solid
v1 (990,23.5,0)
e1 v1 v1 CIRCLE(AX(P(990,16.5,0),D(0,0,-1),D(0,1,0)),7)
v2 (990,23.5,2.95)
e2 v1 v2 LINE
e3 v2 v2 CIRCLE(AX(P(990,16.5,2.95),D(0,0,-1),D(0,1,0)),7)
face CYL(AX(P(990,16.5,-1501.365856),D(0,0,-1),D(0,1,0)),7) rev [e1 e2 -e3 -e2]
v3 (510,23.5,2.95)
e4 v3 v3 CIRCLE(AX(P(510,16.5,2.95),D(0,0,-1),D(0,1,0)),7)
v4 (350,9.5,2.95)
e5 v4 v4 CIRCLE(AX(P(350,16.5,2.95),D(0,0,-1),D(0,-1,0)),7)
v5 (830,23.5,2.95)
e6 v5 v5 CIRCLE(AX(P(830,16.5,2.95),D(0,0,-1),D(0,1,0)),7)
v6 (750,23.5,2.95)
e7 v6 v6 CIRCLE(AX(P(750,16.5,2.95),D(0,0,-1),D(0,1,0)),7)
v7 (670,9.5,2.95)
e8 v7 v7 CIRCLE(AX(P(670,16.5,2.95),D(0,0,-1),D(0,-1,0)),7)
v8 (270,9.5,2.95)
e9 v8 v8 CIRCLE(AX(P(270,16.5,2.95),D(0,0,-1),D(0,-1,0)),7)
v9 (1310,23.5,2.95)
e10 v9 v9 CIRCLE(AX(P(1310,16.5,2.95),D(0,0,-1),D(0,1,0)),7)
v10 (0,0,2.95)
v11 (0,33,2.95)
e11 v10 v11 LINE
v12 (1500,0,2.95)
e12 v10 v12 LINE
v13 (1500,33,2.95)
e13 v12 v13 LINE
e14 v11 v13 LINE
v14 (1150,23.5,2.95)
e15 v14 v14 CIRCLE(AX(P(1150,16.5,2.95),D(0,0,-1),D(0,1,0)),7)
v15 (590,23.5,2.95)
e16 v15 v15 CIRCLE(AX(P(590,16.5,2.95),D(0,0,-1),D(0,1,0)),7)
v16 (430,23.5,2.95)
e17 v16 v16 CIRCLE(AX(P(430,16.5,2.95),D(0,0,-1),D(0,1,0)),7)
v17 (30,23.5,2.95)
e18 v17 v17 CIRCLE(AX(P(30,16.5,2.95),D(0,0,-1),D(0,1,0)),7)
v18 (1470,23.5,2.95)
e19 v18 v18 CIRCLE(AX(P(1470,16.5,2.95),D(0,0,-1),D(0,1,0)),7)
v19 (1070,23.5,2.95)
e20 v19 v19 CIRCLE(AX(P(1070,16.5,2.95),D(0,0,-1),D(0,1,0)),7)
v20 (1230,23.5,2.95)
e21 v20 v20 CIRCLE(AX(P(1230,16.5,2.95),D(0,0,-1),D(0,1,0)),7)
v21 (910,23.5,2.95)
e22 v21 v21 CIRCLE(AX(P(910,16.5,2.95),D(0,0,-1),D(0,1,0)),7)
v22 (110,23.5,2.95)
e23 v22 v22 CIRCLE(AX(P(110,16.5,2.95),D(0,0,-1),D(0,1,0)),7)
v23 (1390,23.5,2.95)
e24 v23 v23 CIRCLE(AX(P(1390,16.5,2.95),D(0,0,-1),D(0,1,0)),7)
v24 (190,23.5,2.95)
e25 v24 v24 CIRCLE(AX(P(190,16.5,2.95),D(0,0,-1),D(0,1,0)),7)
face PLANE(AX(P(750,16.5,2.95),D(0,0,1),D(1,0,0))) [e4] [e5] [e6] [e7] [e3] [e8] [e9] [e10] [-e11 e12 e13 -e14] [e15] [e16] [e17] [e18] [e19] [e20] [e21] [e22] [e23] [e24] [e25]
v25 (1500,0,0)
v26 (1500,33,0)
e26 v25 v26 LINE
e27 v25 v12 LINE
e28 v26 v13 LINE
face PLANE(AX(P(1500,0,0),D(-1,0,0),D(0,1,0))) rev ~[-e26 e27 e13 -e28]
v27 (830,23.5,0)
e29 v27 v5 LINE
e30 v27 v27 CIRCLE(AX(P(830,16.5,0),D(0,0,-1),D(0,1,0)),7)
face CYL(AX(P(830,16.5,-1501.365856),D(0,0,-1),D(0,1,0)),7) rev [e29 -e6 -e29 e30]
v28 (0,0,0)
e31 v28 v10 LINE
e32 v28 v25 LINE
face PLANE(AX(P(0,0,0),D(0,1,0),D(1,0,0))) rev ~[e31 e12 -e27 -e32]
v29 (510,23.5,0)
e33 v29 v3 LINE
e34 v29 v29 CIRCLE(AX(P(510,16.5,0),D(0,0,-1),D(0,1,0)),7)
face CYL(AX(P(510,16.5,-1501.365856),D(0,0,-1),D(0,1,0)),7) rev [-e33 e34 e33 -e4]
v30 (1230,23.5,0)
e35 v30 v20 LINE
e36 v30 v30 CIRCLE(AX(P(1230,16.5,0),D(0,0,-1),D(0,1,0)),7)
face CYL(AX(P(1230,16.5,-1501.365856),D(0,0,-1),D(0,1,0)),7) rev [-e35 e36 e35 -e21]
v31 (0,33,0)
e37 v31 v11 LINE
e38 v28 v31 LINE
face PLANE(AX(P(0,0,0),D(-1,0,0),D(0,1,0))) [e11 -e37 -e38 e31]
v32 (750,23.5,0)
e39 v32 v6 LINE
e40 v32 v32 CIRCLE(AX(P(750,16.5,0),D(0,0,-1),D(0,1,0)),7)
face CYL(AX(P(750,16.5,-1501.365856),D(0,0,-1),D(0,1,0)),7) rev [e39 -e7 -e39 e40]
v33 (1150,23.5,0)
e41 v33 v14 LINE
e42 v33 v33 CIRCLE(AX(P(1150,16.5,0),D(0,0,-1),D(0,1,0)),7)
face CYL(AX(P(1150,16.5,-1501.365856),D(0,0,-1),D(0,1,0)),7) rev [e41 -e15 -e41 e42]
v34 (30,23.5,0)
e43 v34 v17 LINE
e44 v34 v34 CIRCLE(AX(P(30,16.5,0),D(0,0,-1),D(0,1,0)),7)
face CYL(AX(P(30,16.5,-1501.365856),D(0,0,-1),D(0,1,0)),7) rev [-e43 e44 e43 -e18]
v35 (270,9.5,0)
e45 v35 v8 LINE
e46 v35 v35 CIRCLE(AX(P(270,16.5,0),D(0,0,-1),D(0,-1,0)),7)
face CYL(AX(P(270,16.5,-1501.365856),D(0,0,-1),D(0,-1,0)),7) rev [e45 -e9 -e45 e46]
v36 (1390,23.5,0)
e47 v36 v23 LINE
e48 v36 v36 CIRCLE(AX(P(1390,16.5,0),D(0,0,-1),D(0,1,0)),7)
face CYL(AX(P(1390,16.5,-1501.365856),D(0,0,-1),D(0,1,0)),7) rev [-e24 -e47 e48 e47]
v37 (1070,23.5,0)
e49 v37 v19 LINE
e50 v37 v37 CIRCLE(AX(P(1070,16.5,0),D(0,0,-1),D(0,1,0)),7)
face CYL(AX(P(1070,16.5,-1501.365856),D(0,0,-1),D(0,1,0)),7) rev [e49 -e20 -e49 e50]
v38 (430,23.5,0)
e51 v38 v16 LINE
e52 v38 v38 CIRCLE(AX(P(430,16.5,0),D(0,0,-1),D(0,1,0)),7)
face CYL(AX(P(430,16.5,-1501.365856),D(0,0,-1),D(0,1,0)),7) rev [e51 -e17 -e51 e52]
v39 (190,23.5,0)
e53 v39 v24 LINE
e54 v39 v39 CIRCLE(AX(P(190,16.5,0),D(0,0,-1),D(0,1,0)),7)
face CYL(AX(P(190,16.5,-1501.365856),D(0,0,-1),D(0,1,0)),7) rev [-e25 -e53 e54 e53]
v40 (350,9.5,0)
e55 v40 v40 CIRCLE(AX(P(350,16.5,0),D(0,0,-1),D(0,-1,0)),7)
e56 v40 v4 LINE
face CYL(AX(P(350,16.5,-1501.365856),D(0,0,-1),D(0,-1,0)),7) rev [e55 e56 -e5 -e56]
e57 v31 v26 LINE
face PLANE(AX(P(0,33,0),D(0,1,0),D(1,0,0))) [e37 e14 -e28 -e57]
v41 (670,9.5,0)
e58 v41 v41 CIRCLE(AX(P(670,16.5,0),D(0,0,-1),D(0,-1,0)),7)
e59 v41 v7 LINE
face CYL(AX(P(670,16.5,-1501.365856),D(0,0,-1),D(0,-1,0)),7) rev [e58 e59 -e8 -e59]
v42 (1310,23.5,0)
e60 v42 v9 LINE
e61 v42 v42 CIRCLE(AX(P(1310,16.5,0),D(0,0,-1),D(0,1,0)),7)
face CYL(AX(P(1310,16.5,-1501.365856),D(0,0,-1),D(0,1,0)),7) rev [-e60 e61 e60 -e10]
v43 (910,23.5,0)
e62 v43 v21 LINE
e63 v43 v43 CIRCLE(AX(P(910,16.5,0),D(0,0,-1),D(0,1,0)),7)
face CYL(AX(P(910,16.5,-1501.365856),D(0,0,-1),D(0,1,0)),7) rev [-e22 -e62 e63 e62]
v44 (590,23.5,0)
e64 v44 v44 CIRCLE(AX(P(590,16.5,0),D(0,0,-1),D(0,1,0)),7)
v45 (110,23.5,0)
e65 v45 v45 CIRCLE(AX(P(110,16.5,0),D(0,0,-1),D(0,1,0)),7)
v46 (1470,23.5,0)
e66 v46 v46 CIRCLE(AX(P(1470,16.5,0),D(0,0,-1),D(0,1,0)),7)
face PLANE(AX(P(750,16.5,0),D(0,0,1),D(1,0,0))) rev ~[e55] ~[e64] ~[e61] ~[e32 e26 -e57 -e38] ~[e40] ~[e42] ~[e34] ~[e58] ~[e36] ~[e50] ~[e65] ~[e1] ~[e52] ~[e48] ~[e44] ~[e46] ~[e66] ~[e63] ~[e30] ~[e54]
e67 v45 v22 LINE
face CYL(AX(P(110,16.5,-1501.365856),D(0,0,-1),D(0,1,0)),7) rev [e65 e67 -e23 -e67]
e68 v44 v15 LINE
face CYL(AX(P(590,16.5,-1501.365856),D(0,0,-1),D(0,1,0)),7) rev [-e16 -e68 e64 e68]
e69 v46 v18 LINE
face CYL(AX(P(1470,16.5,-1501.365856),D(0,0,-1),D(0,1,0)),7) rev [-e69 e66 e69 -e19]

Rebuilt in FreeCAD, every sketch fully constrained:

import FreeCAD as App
import Part
import Sketcher

V = App.Vector
Q = App.Units.Quantity


def add_polygon(sketch, points):
    """Adds a closed chain of lines whose ends are joined by coincident constraints."""
    first, n = sketch.GeometryCount, len(points)
    for a, b in zip(points, points[1:] + points[:1]):
        sketch.addGeometry(Part.LineSegment(App.Vector(*a, 0), App.Vector(*b, 0)), False)
    for i in range(n):
        sketch.addConstraint(Sketcher.Constraint("Coincident", first + i, 2, first + (i + 1) % n, 1))

doc = App.newDocument("Part")
body = doc.addObject("PartDesign::Body", "Body")

sketch1 = body.newObject("Sketcher::SketchObject", "Sketch")
sketch1.AttachmentSupport = (doc.getObject("XY_Plane"), [""])
sketch1.MapMode = "FlatFace"
add_polygon(sketch1, [(0, 33), (0, 0), (1500, 0), (1500, 33)])
sketch1.addConstraint(Sketcher.Constraint("Vertical", 0))
sketch1.addConstraint(Sketcher.Constraint("Horizontal", 1))
sketch1.addConstraint(Sketcher.Constraint("Vertical", 2))
sketch1.addConstraint(Sketcher.Constraint("Horizontal", 3))
sketch1.addConstraint(Sketcher.Constraint("Coincident", 0, 2, -1, 1))
sketch1.addConstraint(Sketcher.Constraint("DistanceX", 1, 1, 1, 2, Q("1500 mm")))
sketch1.addConstraint(Sketcher.Constraint("DistanceY", 0, 2, 0, 1, Q("33 mm")))
pad1 = body.newObject("PartDesign::Pad", "Pad")
pad1.Profile = sketch1
pad1.Length = 2.95

sketch2 = body.newObject("Sketcher::SketchObject", "Sketch001")
sketch2.AttachmentSupport = (doc.getObject("XY_Plane"), [""])
sketch2.MapMode = "FlatFace"
sketch2.addGeometry(Part.Circle(V(270, 16, 0), V(0, 0, 1), 7), False)
sketch2.addGeometry(Part.Circle(V(350, 16, 0), V(0, 0, 1), 7), False)
sketch2.addGeometry(Part.Circle(V(430, 16, 0), V(0, 0, 1), 7), False)
sketch2.addGeometry(Part.Circle(V(510, 16, 0), V(0, 0, 1), 7), False)
sketch2.addGeometry(Part.Circle(V(590, 16, 0), V(0, 0, 1), 7), False)
sketch2.addGeometry(Part.Circle(V(670, 16, 0), V(0, 0, 1), 7), False)
sketch2.addGeometry(Part.Circle(V(750, 16, 0), V(0, 0, 1), 7), False)
sketch2.addGeometry(Part.Circle(V(830, 16, 0), V(0, 0, 1), 7), False)
sketch2.addGeometry(Part.Circle(V(910, 16, 0), V(0, 0, 1), 7), False)
sketch2.addGeometry(Part.Circle(V(990, 16, 0), V(0, 0, 1), 7), False)
sketch2.addGeometry(Part.Circle(V(1070, 16, 0), V(0, 0, 1), 7), False)
sketch2.addGeometry(Part.Circle(V(1150, 16, 0), V(0, 0, 1), 7), False)
sketch2.addGeometry(Part.Circle(V(1230, 16, 0), V(0, 0, 1), 7), False)
sketch2.addGeometry(Part.Circle(V(1310, 16, 0), V(0, 0, 1), 7), False)
sketch2.addGeometry(Part.Circle(V(1390, 16, 0), V(0, 0, 1), 7), False)
sketch2.addGeometry(Part.Circle(V(1470, 16, 0), V(0, 0, 1), 7), False)
sketch2.addGeometry(Part.Circle(V(30, 16, 0), V(0, 0, 1), 7), False)
sketch2.addGeometry(Part.Circle(V(110, 16, 0), V(0, 0, 1), 7), False)
sketch2.addGeometry(Part.Circle(V(190, 16, 0), V(0, 0, 1), 7), False)
sketch2.addConstraint(Sketcher.Constraint("Equal", 0, 1))
sketch2.addConstraint(Sketcher.Constraint("Equal", 1, 2))
sketch2.addConstraint(Sketcher.Constraint("Equal", 2, 3))
sketch2.addConstraint(Sketcher.Constraint("Equal", 3, 4))
sketch2.addConstraint(Sketcher.Constraint("Equal", 4, 5))
sketch2.addConstraint(Sketcher.Constraint("Equal", 5, 6))
sketch2.addConstraint(Sketcher.Constraint("Equal", 6, 7))
sketch2.addConstraint(Sketcher.Constraint("Equal", 7, 8))
sketch2.addConstraint(Sketcher.Constraint("Equal", 8, 9))
sketch2.addConstraint(Sketcher.Constraint("Equal", 9, 10))
sketch2.addConstraint(Sketcher.Constraint("Equal", 10, 11))
sketch2.addConstraint(Sketcher.Constraint("Equal", 11, 12))
sketch2.addConstraint(Sketcher.Constraint("Equal", 12, 13))
sketch2.addConstraint(Sketcher.Constraint("Equal", 13, 14))
sketch2.addConstraint(Sketcher.Constraint("Equal", 14, 15))
sketch2.addConstraint(Sketcher.Constraint("Equal", 15, 16))
sketch2.addConstraint(Sketcher.Constraint("Equal", 16, 17))
sketch2.addConstraint(Sketcher.Constraint("Equal", 17, 18))
sketch2.addConstraint(Sketcher.Constraint("Horizontal", 0, 3, 1, 3))
sketch2.addConstraint(Sketcher.Constraint("Horizontal", 1, 3, 2, 3))
sketch2.addConstraint(Sketcher.Constraint("Horizontal", 2, 3, 3, 3))
sketch2.addConstraint(Sketcher.Constraint("Horizontal", 3, 3, 4, 3))
sketch2.addConstraint(Sketcher.Constraint("Horizontal", 4, 3, 5, 3))
sketch2.addConstraint(Sketcher.Constraint("Horizontal", 5, 3, 6, 3))
sketch2.addConstraint(Sketcher.Constraint("Horizontal", 6, 3, 7, 3))
sketch2.addConstraint(Sketcher.Constraint("Horizontal", 7, 3, 8, 3))
sketch2.addConstraint(Sketcher.Constraint("Horizontal", 8, 3, 9, 3))
sketch2.addConstraint(Sketcher.Constraint("Horizontal", 9, 3, 10, 3))
sketch2.addConstraint(Sketcher.Constraint("Horizontal", 10, 3, 11, 3))
sketch2.addConstraint(Sketcher.Constraint("Horizontal", 11, 3, 12, 3))
sketch2.addConstraint(Sketcher.Constraint("Horizontal", 12, 3, 13, 3))
sketch2.addConstraint(Sketcher.Constraint("Horizontal", 13, 3, 14, 3))
sketch2.addConstraint(Sketcher.Constraint("Horizontal", 14, 3, 15, 3))
sketch2.addConstraint(Sketcher.Constraint("Horizontal", 15, 3, 16, 3))
sketch2.addConstraint(Sketcher.Constraint("Horizontal", 16, 3, 17, 3))
sketch2.addConstraint(Sketcher.Constraint("Horizontal", 17, 3, 18, 3))
sketch2.addConstraint(Sketcher.Constraint("Diameter", 0, Q("14 mm")))
sketch2.addConstraint(Sketcher.Constraint("DistanceX", -1, 1, 0, 3, Q("270 mm")))
sketch2.addConstraint(Sketcher.Constraint("DistanceX", -1, 1, 1, 3, Q("350 mm")))
sketch2.addConstraint(Sketcher.Constraint("DistanceX", -1, 1, 2, 3, Q("430 mm")))
sketch2.addConstraint(Sketcher.Constraint("DistanceX", -1, 1, 3, 3, Q("510 mm")))
sketch2.addConstraint(Sketcher.Constraint("DistanceX", -1, 1, 4, 3, Q("590 mm")))
sketch2.addConstraint(Sketcher.Constraint("DistanceX", -1, 1, 5, 3, Q("670 mm")))
sketch2.addConstraint(Sketcher.Constraint("DistanceX", -1, 1, 6, 3, Q("750 mm")))
sketch2.addConstraint(Sketcher.Constraint("DistanceX", -1, 1, 7, 3, Q("830 mm")))
sketch2.addConstraint(Sketcher.Constraint("DistanceX", -1, 1, 8, 3, Q("910 mm")))
sketch2.addConstraint(Sketcher.Constraint("DistanceX", -1, 1, 9, 3, Q("990 mm")))
sketch2.addConstraint(Sketcher.Constraint("DistanceX", -1, 1, 10, 3, Q("1070 mm")))
sketch2.addConstraint(Sketcher.Constraint("DistanceX", -1, 1, 11, 3, Q("1150 mm")))
sketch2.addConstraint(Sketcher.Constraint("DistanceX", -1, 1, 12, 3, Q("1230 mm")))
sketch2.addConstraint(Sketcher.Constraint("DistanceX", -1, 1, 13, 3, Q("1310 mm")))
sketch2.addConstraint(Sketcher.Constraint("DistanceX", -1, 1, 14, 3, Q("1390 mm")))
sketch2.addConstraint(Sketcher.Constraint("DistanceX", -1, 1, 15, 3, Q("1470 mm")))
sketch2.addConstraint(Sketcher.Constraint("DistanceX", -1, 1, 16, 3, Q("30 mm")))
sketch2.addConstraint(Sketcher.Constraint("DistanceX", -1, 1, 17, 3, Q("110 mm")))
sketch2.addConstraint(Sketcher.Constraint("DistanceX", -1, 1, 18, 3, Q("190 mm")))
sketch2.addConstraint(Sketcher.Constraint("DistanceY", -1, 1, 0, 3, Q("16.5 mm")))
pocket1 = body.newObject("PartDesign::Pocket", "Pocket")
pocket1.Profile = sketch2
pocket1.Type = "ThroughAll"
pocket1.Midplane = True

doc.recompute()
